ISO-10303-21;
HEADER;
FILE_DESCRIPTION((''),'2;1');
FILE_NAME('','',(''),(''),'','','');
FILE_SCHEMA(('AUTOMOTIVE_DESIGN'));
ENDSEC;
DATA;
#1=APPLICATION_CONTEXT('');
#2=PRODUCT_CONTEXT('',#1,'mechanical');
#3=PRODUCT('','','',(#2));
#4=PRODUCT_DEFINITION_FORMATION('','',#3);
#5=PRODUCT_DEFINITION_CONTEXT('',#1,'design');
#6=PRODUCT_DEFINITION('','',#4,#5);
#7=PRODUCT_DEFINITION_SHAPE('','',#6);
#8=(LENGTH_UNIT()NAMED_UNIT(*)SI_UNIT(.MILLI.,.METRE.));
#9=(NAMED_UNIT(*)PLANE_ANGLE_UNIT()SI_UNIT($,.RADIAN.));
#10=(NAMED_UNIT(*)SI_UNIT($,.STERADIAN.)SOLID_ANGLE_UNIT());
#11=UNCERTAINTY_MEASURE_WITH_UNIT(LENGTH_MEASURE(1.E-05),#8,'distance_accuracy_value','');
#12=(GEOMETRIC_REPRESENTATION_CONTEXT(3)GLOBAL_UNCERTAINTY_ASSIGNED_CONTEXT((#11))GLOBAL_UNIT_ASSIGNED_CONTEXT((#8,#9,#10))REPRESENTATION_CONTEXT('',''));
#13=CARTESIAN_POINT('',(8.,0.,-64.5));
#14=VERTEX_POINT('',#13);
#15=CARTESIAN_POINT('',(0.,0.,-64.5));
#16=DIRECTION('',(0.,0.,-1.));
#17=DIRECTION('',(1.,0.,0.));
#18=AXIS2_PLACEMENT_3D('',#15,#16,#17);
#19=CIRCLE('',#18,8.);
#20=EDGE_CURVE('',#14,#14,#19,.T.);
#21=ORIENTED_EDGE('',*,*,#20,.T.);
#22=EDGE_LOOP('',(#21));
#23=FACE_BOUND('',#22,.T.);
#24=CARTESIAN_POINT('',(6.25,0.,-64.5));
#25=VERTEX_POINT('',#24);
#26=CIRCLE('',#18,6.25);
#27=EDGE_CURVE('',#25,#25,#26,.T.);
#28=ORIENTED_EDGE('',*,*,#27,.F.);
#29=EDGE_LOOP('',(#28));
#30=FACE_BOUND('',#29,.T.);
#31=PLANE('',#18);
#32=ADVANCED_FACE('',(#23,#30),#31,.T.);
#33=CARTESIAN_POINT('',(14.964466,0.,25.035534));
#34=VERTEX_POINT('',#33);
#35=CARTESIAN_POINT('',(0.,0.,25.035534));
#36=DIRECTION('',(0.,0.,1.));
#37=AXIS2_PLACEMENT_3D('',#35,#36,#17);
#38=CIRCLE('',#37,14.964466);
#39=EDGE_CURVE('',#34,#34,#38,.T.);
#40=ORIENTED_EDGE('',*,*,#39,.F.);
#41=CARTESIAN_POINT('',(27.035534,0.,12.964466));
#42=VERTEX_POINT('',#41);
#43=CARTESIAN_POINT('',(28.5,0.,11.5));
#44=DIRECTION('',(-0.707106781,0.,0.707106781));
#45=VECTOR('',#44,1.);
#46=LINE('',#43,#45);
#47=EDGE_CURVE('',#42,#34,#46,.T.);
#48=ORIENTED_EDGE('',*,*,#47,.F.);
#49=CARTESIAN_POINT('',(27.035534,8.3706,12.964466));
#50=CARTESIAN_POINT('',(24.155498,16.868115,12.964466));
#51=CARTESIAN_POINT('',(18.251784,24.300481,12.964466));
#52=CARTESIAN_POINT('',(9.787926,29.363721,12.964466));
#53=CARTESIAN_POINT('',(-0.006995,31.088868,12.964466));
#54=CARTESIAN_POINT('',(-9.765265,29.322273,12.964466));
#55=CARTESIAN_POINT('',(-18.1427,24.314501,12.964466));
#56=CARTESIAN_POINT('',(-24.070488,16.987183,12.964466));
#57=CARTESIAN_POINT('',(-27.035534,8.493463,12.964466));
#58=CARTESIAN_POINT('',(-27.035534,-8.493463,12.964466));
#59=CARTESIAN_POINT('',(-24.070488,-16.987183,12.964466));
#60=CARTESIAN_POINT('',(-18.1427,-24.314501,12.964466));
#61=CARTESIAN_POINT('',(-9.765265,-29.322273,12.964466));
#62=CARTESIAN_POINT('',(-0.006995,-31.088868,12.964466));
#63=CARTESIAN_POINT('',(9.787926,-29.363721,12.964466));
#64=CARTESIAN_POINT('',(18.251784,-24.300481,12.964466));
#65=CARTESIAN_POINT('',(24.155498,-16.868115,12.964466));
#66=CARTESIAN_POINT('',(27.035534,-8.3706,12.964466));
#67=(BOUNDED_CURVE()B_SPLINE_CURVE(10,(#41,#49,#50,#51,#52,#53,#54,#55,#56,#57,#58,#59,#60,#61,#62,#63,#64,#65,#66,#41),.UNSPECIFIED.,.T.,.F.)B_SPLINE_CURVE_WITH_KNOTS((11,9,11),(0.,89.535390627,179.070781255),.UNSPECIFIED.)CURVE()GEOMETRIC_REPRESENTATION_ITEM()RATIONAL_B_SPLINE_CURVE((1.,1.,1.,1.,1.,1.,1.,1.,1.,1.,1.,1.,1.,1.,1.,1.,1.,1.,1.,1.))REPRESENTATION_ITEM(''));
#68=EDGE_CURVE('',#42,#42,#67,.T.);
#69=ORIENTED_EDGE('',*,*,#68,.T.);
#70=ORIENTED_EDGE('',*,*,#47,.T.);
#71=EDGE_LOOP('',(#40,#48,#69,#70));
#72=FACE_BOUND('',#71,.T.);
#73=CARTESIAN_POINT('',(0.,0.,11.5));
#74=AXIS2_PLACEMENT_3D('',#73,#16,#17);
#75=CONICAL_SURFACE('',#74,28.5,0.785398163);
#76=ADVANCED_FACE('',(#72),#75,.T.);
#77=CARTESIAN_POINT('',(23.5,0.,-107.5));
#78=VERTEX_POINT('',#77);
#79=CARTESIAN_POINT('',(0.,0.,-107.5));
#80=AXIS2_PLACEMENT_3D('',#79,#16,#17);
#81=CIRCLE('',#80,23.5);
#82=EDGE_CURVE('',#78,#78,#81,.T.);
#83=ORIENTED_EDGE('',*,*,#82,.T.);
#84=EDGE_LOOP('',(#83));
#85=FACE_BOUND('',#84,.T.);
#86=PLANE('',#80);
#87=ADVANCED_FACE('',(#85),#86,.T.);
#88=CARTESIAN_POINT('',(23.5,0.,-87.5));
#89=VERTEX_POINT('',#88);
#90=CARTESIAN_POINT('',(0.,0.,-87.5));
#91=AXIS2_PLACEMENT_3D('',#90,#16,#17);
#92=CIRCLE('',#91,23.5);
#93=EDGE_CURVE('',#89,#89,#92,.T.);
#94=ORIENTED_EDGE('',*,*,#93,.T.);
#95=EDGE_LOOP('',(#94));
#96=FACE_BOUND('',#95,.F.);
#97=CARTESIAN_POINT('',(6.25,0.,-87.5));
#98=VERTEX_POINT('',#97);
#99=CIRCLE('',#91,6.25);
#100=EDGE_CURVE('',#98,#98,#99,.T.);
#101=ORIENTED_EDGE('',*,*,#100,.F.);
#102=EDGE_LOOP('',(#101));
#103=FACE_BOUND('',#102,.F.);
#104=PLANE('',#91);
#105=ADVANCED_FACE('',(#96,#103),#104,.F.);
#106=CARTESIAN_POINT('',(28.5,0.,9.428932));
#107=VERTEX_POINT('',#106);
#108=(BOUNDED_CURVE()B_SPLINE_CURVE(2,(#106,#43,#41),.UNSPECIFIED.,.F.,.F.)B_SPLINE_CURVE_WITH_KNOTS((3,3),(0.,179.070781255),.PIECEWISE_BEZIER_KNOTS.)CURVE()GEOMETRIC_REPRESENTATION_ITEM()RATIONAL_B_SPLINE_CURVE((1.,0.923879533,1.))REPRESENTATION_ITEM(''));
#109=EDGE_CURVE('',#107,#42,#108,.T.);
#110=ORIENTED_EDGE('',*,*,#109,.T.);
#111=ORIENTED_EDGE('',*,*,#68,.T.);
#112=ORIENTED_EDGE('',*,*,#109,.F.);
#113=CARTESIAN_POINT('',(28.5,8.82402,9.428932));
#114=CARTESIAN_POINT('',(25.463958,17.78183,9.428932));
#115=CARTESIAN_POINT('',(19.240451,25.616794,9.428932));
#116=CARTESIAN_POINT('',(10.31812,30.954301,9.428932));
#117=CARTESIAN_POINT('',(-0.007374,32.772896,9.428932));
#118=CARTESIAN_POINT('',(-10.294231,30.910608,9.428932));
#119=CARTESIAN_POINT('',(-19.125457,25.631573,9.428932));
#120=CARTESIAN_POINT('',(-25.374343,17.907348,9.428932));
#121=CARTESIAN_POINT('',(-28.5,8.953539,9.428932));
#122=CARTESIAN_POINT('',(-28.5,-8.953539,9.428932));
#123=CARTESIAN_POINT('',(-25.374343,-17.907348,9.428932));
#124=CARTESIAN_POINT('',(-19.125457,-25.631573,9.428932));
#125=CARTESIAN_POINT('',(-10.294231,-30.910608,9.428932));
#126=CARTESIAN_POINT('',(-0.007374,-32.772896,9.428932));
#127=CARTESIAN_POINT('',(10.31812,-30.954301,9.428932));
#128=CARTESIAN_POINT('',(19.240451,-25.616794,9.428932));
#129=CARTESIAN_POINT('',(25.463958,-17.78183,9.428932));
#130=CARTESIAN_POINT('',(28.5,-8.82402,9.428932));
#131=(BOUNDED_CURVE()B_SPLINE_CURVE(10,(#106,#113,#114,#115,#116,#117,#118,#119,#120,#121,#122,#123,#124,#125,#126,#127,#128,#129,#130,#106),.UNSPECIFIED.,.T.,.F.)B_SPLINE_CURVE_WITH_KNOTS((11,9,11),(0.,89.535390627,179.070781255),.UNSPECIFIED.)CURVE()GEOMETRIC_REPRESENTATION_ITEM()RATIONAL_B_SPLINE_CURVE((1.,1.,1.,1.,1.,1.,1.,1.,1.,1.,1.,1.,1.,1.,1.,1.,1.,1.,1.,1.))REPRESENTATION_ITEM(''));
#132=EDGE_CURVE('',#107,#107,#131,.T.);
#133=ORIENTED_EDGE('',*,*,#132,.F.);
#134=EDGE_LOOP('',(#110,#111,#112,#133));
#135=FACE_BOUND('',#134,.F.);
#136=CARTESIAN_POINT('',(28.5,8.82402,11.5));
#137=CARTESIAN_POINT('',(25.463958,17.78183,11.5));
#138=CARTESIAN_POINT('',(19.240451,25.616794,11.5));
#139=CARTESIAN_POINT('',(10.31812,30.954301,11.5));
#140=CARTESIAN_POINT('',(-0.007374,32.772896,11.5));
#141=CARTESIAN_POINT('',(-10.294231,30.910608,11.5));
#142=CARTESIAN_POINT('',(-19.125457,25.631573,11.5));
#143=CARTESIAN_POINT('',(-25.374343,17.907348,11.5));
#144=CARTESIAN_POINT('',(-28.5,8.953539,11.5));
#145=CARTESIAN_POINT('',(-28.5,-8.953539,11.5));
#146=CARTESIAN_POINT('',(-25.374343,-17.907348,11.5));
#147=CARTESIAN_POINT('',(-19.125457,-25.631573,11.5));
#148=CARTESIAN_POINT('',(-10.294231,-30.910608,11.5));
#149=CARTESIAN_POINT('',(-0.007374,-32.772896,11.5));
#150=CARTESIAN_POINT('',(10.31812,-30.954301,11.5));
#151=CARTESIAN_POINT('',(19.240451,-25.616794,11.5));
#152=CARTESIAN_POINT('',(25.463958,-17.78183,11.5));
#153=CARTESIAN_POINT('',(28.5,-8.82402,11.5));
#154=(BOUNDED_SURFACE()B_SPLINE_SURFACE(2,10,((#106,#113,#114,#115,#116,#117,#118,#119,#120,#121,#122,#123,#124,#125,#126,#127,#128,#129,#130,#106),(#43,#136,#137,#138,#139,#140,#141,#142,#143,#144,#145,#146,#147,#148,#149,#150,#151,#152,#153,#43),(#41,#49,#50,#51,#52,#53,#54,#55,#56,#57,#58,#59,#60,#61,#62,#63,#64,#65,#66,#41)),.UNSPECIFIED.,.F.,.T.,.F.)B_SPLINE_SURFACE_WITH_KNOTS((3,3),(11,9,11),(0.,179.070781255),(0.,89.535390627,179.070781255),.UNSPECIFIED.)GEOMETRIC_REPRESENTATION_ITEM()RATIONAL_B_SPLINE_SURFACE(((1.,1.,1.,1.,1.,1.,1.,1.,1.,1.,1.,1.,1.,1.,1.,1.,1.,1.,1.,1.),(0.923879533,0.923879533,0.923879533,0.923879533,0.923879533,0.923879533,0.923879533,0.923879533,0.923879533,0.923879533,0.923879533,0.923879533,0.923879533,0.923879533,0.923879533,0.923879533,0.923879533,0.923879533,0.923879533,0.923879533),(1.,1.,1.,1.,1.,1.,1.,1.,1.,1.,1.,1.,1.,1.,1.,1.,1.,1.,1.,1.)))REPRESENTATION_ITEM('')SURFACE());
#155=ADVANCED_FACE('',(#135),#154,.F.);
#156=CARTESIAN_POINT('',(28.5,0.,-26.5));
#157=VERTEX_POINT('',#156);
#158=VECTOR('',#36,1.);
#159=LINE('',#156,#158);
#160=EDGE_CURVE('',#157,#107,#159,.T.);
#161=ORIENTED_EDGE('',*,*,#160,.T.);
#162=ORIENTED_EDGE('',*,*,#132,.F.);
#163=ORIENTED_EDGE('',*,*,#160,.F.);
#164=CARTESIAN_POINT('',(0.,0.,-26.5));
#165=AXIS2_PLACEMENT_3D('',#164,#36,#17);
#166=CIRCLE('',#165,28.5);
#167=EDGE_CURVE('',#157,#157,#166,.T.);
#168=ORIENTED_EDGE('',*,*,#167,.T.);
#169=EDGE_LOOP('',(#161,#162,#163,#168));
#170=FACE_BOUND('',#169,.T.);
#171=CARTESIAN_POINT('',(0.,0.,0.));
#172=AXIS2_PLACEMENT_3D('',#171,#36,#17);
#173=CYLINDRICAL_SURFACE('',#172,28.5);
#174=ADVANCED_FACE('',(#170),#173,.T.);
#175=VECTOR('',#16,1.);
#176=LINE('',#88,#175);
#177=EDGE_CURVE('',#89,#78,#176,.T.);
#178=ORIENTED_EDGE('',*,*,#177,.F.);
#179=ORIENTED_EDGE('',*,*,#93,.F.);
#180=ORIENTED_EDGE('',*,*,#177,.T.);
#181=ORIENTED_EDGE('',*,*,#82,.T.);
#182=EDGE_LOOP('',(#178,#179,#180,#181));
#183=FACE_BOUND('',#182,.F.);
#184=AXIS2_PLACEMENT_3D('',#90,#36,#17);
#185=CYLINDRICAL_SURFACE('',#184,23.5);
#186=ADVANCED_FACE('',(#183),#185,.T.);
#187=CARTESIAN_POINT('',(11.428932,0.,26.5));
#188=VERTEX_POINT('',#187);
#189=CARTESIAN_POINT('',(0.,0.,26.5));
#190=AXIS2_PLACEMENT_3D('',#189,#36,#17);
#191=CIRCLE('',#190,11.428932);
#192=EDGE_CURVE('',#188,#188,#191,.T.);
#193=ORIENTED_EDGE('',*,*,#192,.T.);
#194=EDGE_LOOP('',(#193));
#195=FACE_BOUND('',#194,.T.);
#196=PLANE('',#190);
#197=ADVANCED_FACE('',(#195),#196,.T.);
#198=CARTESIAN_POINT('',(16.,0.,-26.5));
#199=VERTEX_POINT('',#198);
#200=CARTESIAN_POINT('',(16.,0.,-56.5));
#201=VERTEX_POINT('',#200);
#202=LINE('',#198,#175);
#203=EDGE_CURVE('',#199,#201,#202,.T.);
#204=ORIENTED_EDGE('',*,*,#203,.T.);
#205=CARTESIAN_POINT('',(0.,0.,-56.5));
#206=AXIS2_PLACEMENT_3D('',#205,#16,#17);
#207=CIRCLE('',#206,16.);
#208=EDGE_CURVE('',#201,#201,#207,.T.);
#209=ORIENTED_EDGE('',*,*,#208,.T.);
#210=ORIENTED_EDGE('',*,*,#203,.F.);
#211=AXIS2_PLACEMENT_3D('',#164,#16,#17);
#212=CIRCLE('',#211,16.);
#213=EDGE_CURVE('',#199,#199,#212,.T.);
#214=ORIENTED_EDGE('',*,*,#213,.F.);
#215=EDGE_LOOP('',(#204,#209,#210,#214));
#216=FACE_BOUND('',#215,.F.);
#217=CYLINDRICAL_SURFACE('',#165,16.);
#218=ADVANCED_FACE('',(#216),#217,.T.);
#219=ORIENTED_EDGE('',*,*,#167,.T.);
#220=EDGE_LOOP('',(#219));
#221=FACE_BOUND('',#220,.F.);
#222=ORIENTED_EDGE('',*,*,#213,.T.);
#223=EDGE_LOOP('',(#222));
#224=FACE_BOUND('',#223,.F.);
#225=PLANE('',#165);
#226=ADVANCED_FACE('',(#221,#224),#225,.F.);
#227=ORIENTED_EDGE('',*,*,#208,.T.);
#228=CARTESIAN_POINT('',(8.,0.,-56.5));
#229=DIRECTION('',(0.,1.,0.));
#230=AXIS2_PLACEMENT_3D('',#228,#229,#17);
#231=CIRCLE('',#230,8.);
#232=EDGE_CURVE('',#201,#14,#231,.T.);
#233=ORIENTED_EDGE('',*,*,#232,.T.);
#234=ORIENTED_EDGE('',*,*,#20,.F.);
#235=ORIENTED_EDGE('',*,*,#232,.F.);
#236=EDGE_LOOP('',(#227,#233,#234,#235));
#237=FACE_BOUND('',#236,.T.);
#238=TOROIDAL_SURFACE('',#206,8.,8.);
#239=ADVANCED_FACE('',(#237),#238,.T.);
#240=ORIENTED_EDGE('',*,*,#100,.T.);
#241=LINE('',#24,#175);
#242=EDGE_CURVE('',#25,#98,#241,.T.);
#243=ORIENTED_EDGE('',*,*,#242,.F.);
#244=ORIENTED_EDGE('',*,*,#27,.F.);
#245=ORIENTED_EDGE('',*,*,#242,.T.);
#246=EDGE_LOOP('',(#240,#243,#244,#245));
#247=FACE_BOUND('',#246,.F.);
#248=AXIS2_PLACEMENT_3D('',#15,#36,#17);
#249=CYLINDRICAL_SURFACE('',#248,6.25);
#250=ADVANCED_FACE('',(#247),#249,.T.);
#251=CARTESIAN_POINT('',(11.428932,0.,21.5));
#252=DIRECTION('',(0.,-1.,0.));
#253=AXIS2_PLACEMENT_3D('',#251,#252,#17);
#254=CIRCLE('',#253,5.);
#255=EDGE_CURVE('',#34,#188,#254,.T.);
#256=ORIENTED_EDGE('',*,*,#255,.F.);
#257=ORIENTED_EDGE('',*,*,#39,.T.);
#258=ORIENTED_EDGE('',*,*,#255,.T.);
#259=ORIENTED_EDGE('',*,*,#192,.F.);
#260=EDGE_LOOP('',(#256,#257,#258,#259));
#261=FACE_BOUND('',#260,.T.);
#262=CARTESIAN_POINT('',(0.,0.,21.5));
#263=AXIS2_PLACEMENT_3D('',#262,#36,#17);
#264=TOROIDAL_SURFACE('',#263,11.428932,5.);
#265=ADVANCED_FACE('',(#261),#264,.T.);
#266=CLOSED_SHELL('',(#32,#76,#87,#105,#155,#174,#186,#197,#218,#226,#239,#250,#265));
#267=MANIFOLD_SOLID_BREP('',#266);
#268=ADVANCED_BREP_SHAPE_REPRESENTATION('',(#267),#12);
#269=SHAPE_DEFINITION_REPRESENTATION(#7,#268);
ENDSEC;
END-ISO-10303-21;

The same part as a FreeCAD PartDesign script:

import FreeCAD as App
import Part
import Sketcher

V = App.Vector
Q = App.Units.Quantity


def edges_at(feature, points):
    """Names of the edges that pass closest to the given points."""
    edges = feature.Shape.Edges
    near = lambda p: min(range(len(edges)), key=lambda i: edges[i].distToShape(Part.Vertex(*p))[0])
    return sorted({f"Edge{near(p) + 1}" for p in points})

doc = App.newDocument("Part")
body = doc.addObject("PartDesign::Body", "Body")

# Sketch on XY plane
sketch1 = doc.addObject("Sketcher::SketchObject", "Sketch")
body.addObject(sketch1)
sketch1.AttachmentSupport = (doc.XY_Plane, [""])
sketch1.MapMode = "FlatFace"
sketch1.addGeometry(Part.Circle(V(0, 0, 0), V(0, 0, 1), 28), False)
sketch1.addConstraint([
    Sketcher.Constraint("Coincident", 0, 3, -1, 1),
    Sketcher.Constraint("Diameter", 0, Q("57 mm")),
])
pad1 = doc.addObject("PartDesign::Pad", "Pad")
body.addObject(pad1)
pad1.Profile = sketch1
pad1.Length = 53
pad1.Midplane = True

# Sketch on XY plane
sketch2 = doc.addObject("Sketcher::SketchObject", "Sketch001")
body.addObject(sketch2)
sketch2.AttachmentSupport = (doc.XY_Plane, [""])
sketch2.MapMode = "FlatFace"
sketch2.AttachmentOffset = App.Placement(V(0, 0, -26.5), App.Rotation())
sketch2.addGeometry(Part.Circle(V(0, 0, 0), V(0, 0, 1), 16), False)
sketch2.addConstraint([
    Sketcher.Constraint("Coincident", 0, 3, -1, 1),
    Sketcher.Constraint("Diameter", 0, Q("32 mm")),
])
pad2 = doc.addObject("PartDesign::Pad", "Pad001")
body.addObject(pad2)
pad2.Profile = sketch2
pad2.Length = 38
pad2.Reversed = True
doc.recompute()

fillet = doc.addObject("PartDesign::Fillet", "Fillet")
body.addObject(fillet)
fillet.Base = (pad2, edges_at(pad2, [(-16, 0, -64.5)]))
fillet.Radius = 8
doc.recompute()

chamfer = doc.addObject("PartDesign::Chamfer", "Chamfer")
body.addObject(chamfer)
chamfer.Base = (fillet, edges_at(fillet, [(-28.5, 0, 26.5)]))
chamfer.Size = 15
doc.recompute()

fillet2 = doc.addObject("PartDesign::Fillet", "Fillet001")
body.addObject(fillet2)
fillet2.Base = (chamfer, edges_at(chamfer, [(-28.5, 0, 11.5), (-13.5, 0, 26.5)]))
fillet2.Radius = 5

# Sketch on XY plane
sketch3 = doc.addObject("Sketcher::SketchObject", "Sketch002")
body.addObject(sketch3)
sketch3.AttachmentSupport = (doc.XY_Plane, [""])
sketch3.MapMode = "FlatFace"
sketch3.AttachmentOffset = App.Placement(V(0, 0, -64.5), App.Rotation())
sketch3.addGeometry(Part.Circle(V(0, 0, 0), V(0, 0, 1), 6), False)
sketch3.addConstraint([
    Sketcher.Constraint("Coincident", 0, 3, -1, 1),
    Sketcher.Constraint("Diameter", 0, Q("12.5 mm")),
])
pad3 = doc.addObject("PartDesign::Pad", "Pad002")
body.addObject(pad3)
pad3.Profile = sketch3
pad3.Length = 23
pad3.Reversed = True

# Sketch on XY plane
sketch4 = doc.addObject("Sketcher::SketchObject", "Sketch003")
body.addObject(sketch4)
sketch4.AttachmentSupport = (doc.XY_Plane, [""])
sketch4.MapMode = "FlatFace"
sketch4.AttachmentOffset = App.Placement(V(0, 0, -87.5), App.Rotation())
sketch4.addGeometry(Part.Circle(V(0, 0, 0), V(0, 0, 1), 24), False)
sketch4.addConstraint([
    Sketcher.Constraint("Coincident", 0, 3, -1, 1),
    Sketcher.Constraint("Diameter", 0, Q("47 mm")),
])
pad4 = doc.addObject("PartDesign::Pad", "Pad003")
body.addObject(pad4)
pad4.Profile = sketch4
pad4.Length = 20
pad4.Reversed = True

doc.recompute()
